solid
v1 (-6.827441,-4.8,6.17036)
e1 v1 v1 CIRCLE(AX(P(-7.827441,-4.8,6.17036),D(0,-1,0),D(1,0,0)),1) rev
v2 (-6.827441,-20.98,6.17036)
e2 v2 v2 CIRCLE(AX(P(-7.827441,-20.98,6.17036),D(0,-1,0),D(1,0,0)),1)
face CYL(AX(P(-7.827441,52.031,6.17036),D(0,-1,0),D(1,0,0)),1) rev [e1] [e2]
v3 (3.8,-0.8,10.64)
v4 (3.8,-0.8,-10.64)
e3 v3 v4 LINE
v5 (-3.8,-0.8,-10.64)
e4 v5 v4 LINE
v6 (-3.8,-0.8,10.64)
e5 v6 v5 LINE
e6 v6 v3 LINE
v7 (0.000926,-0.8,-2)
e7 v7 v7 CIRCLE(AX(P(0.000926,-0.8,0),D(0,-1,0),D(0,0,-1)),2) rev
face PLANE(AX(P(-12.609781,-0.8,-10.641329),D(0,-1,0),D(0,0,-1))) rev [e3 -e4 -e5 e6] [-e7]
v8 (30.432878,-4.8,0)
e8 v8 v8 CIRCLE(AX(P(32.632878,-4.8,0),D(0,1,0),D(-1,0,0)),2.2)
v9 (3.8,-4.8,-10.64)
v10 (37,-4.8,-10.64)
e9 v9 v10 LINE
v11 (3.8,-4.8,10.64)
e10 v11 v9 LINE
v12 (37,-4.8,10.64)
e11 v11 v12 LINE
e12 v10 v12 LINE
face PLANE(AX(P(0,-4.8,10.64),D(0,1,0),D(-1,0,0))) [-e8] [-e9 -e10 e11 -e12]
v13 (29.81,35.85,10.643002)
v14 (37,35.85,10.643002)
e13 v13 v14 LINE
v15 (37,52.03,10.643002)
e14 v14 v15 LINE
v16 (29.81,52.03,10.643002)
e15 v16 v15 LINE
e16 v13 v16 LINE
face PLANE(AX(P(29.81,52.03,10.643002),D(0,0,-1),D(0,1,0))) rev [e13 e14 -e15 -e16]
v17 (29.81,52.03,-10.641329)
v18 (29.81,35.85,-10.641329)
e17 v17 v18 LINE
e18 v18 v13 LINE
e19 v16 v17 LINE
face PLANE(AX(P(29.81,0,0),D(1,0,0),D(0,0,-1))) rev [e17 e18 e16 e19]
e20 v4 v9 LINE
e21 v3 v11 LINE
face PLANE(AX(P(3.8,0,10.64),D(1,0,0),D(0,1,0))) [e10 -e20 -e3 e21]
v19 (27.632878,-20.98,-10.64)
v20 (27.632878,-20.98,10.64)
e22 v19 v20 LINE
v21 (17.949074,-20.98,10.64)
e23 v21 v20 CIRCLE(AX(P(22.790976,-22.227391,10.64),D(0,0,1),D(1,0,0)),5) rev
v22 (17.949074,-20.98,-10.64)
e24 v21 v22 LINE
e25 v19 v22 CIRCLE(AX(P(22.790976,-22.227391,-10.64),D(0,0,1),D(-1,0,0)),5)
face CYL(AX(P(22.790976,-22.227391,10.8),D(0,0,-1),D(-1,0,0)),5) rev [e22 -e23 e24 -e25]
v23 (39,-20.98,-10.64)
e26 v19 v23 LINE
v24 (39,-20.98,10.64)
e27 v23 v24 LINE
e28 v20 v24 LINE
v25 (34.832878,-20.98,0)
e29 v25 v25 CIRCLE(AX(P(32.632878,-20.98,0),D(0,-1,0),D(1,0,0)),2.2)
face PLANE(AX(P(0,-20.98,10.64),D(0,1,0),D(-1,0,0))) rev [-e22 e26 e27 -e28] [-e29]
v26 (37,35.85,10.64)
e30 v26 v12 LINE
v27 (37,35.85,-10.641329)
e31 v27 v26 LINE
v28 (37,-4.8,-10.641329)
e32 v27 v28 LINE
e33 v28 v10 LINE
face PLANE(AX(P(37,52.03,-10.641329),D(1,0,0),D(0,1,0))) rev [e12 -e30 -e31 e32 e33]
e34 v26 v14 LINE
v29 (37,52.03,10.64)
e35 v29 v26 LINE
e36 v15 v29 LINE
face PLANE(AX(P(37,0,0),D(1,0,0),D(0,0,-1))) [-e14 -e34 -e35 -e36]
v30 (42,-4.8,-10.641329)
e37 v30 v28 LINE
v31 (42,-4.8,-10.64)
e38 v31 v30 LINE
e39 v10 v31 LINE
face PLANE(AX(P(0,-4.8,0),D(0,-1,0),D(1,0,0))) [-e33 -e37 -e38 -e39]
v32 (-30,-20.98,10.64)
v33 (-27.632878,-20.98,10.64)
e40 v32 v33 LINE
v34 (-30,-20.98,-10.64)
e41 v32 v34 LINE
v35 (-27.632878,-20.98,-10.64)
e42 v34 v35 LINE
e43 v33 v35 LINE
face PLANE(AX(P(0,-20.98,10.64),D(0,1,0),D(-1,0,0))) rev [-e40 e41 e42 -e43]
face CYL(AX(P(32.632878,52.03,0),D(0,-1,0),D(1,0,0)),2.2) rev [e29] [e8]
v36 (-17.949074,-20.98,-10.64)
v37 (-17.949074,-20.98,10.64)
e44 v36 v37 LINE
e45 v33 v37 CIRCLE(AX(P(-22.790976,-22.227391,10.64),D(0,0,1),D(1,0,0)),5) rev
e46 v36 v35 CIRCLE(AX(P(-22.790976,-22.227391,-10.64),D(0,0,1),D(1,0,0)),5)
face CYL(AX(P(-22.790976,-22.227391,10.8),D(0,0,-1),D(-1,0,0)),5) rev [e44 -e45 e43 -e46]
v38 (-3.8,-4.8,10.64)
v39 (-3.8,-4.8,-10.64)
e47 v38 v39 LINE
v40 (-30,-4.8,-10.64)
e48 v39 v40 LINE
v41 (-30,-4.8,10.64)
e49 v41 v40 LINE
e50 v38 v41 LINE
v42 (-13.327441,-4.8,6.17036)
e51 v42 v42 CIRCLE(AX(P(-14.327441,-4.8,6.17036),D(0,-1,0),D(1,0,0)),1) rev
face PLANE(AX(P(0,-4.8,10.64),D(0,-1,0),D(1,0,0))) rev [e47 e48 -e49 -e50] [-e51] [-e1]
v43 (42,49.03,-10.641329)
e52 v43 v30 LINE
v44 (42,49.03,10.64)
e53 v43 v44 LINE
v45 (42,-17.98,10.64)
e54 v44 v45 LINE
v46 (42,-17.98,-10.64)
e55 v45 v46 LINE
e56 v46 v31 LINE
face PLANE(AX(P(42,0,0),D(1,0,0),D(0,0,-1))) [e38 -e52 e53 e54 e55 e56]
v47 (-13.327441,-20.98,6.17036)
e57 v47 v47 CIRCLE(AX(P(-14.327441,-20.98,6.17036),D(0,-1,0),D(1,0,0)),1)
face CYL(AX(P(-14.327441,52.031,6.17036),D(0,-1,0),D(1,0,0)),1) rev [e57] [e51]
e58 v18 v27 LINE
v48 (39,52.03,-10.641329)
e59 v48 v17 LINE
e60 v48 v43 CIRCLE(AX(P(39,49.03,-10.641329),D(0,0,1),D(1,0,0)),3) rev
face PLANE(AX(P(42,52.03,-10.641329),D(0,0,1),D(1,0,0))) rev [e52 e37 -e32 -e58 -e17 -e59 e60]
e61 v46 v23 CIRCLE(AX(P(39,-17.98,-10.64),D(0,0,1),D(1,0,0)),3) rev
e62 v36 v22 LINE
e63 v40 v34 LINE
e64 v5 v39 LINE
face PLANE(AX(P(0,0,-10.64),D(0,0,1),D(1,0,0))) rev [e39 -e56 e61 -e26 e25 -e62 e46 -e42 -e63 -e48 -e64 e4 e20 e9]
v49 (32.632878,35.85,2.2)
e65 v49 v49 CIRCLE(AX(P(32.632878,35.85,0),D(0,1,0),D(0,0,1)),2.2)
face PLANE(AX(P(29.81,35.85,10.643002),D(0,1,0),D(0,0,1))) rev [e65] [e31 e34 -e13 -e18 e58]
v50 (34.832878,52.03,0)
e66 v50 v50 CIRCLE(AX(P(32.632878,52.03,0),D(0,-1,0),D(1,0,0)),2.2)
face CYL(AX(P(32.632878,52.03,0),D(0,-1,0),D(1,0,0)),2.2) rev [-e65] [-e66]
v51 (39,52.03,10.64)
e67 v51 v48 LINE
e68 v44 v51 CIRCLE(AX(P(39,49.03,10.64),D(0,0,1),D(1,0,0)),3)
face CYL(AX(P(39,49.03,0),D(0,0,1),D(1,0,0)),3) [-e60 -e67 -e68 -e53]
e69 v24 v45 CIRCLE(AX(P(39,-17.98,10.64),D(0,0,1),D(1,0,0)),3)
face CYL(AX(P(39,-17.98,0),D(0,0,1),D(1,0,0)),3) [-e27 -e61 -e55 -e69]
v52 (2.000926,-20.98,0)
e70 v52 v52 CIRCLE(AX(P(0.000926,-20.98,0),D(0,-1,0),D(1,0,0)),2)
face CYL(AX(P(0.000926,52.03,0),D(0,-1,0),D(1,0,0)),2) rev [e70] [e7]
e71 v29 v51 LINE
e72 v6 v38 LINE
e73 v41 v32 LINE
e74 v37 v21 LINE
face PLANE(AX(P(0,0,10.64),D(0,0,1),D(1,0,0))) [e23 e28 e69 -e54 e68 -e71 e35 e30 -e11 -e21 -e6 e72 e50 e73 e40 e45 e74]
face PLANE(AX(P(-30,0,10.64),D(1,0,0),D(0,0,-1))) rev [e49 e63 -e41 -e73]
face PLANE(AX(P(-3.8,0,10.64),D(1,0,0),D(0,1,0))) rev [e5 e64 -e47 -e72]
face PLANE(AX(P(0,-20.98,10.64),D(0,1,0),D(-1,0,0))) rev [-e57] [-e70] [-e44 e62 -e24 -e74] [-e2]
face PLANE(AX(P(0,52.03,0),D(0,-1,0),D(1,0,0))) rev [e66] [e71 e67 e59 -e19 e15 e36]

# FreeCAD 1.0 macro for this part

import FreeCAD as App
import Part
import Sketcher
Q = App.Units.Quantity


def edges_at(feature, points):
    """Names of the edges that pass closest to the given points."""
    edges = feature.Shape.Edges
    near = lambda p: min(range(len(edges)), key=lambda i: edges[i].distToShape(Part.Vertex(*p))[0])
    return sorted({f"Edge{near(p) + 1}" for p in points})

doc = App.newDocument("Part")
body = doc.addObject("PartDesign::Body", "Body")

# Sketch on XY plane
sketch1 = body.newObject("Sketcher::SketchObject", "Sketch")
sketch1.AttachmentSupport = (doc.getObject("XY_Plane"), [""])
sketch1.MapMode = "FlatFace"
sketch1.addGeometry(Part.LineSegment(App.Vector(-10.1, 0, 0), App.Vector(10.1, 0, 0)), False)
sketch1.addGeometry(Part.LineSegment(App.Vector(10.1, 0, 0), App.Vector(10.1, 1.709944, 0)), False)
sketch1.addGeometry(Part.LineSegment(App.Vector(10.1, 1.709944, 0), App.Vector(6.254804, 7, 0)), False)
sketch1.addGeometry(Part.LineSegment(App.Vector(6.254804, 7, 0), App.Vector(-6.254804, 7, 0)), False)
sketch1.addGeometry(Part.LineSegment(App.Vector(-6.254804, 7, 0), App.Vector(-10.1, 1.709944, 0)), False)
sketch1.addGeometry(Part.LineSegment(App.Vector(-10.1, 1.709944, 0), App.Vector(-10.1, 0, 0)), False)
sketch1.addConstraint(Sketcher.Constraint("Coincident", 0, 2, 1, 1))
sketch1.addConstraint(Sketcher.Constraint("Coincident", 1, 2, 2, 1))
sketch1.addConstraint(Sketcher.Constraint("Coincident", 2, 2, 3, 1))
sketch1.addConstraint(Sketcher.Constraint("Coincident", 3, 2, 4, 1))
sketch1.addConstraint(Sketcher.Constraint("Coincident", 4, 2, 5, 1))
sketch1.addConstraint(Sketcher.Constraint("Coincident", 5, 2, 0, 1))
sketch1.addConstraint(Sketcher.Constraint("Horizontal", 0))
sketch1.addConstraint(Sketcher.Constraint("Vertical", 1))
sketch1.addConstraint(Sketcher.Constraint("Horizontal", 3))
sketch1.addConstraint(Sketcher.Constraint("Vertical", 5))
sketch1.addConstraint(Sketcher.Constraint("Symmetric", 0, 2, 5, 2, -1, 1))
sketch1.addConstraint(Sketcher.Constraint("Horizontal", 1, 2, 4, 2))
sketch1.addConstraint(Sketcher.Constraint("Equal", 2, 4))
sketch1.addConstraint(Sketcher.Constraint("DistanceX", 0, 1, 0, 2, Q("20.2 mm")))
sketch1.addConstraint(Sketcher.Constraint("DistanceY", -1, 1, 2, 2, Q("7 mm")))
sketch1.addConstraint(Sketcher.Constraint("DistanceX", 3, 2, 3, 1, Q("12.509609 mm")))
sketch1.addConstraint(Sketcher.Constraint("DistanceY", 1, 1, 1, 2, Q("1.709944 mm")))
pad1 = body.newObject("PartDesign::Pad", "Pad")
pad1.Profile = sketch1
pad1.Length = 10.8

# Sketch on XY plane
sketch2 = body.newObject("Sketcher::SketchObject", "Sketch001")
sketch2.AttachmentSupport = (doc.getObject("XY_Plane"), [""])
sketch2.MapMode = "FlatFace"
sketch2.addGeometry(Part.LineSegment(App.Vector(-3.8, 0, 0), App.Vector(-3.8, -4.8, 0)), False)
sketch2.addGeometry(Part.LineSegment(App.Vector(-3.8, -4.8, 0), App.Vector(-30, -4.8, 0)), False)
sketch2.addGeometry(Part.LineSegment(App.Vector(-30, -4.8, 0), App.Vector(-30, -20.98, 0)), False)
sketch2.addGeometry(Part.LineSegment(App.Vector(-30, -20.98, 0), App.Vector(30, -20.98, 0)), False)
sketch2.addGeometry(Part.LineSegment(App.Vector(30, -20.98, 0), App.Vector(30, -4.8, 0)), False)
sketch2.addGeometry(Part.LineSegment(App.Vector(30, -4.8, 0), App.Vector(3.8, -4.8, 0)), False)
sketch2.addGeometry(Part.LineSegment(App.Vector(3.8, -4.8, 0), App.Vector(3.8, 0, 0)), False)
sketch2.addGeometry(Part.LineSegment(App.Vector(3.8, 0, 0), App.Vector(-3.8, 0, 0)), False)
sketch2.addConstraint(Sketcher.Constraint("Coincident", 0, 2, 1, 1))
sketch2.addConstraint(Sketcher.Constraint("Coincident", 1, 2, 2, 1))
sketch2.addConstraint(Sketcher.Constraint("Coincident", 2, 2, 3, 1))
sketch2.addConstraint(Sketcher.Constraint("Coincident", 3, 2, 4, 1))
sketch2.addConstraint(Sketcher.Constraint("Coincident", 4, 2, 5, 1))
sketch2.addConstraint(Sketcher.Constraint("Coincident", 5, 2, 6, 1))
sketch2.addConstraint(Sketcher.Constraint("Coincident", 6, 2, 7, 1))
sketch2.addConstraint(Sketcher.Constraint("Coincident", 7, 2, 0, 1))
sketch2.addConstraint(Sketcher.Constraint("Vertical", 0))
sketch2.addConstraint(Sketcher.Constraint("Horizontal", 1))
sketch2.addConstraint(Sketcher.Constraint("Vertical", 2))
sketch2.addConstraint(Sketcher.Constraint("Horizontal", 3))
sketch2.addConstraint(Sketcher.Constraint("Vertical", 4))
sketch2.addConstraint(Sketcher.Constraint("Horizontal", 5))
sketch2.addConstraint(Sketcher.Constraint("Vertical", 6))
sketch2.addConstraint(Sketcher.Constraint("Horizontal", 7))
sketch2.addConstraint(Sketcher.Constraint("Symmetric", 6, 2, 7, 2, -1, 1))
sketch2.addConstraint(Sketcher.Constraint("Symmetric", 1, 2, 4, 2, -2))
sketch2.addConstraint(Sketcher.Constraint("DistanceX", 3, 1, 3, 2, Q("60 mm")))
sketch2.addConstraint(Sketcher.Constraint("DistanceX", 1, 2, 1, 1, Q("26.2 mm")))
sketch2.addConstraint(Sketcher.Constraint("DistanceY", 0, 2, 0, 1, Q("4.8 mm")))
sketch2.addConstraint(Sketcher.Constraint("DistanceY", 2, 2, 2, 1, Q("16.18 mm")))
pad2 = body.newObject("PartDesign::Pad", "Pad001")
pad2.Profile = sketch2
pad2.Length = 21.28
pad2.Midplane = True

# Sketch on XY plane
sketch3 = body.newObject("Sketcher::SketchObject", "Sketch002")
sketch3.AttachmentSupport = (doc.getObject("XY_Plane"), [""])
sketch3.MapMode = "FlatFace"
sketch3.addGeometry(Part.Circle(App.Vector(-22.790976, -22.227391, 0), App.Vector(0, 0, 1), 5), False)
sketch3.addGeometry(Part.Circle(App.Vector(22.790976, -22.227391, 0), App.Vector(0, 0, 1), 5), False)
sketch3.addConstraint(Sketcher.Constraint("Equal", 0, 1))
sketch3.addConstraint(Sketcher.Constraint("Symmetric", 0, 3, 1, 3, -2))
sketch3.addConstraint(Sketcher.Constraint("Diameter", 0, Q("10 mm")))
sketch3.addConstraint(Sketcher.Constraint("DistanceY", 0, 3, -1, 1, Q("22.227391 mm")))
sketch3.addConstraint(Sketcher.Constraint("DistanceX", 0, 3, -1, 1, Q("22.790976 mm")))
pocket1 = body.newObject("PartDesign::Pocket", "Pocket")
pocket1.Profile = sketch3
pocket1.Type = "ThroughAll"
pocket1.Midplane = True
doc.recompute()

fillet = body.newObject("PartDesign::Fillet", "Fillet")
fillet.Base = (pocket1, edges_at(pocket1, [
    (-10.1, 0, 5.4),
    (-10.1, 1.71, 5.4),
    (-6.255, 7, 5.4),
    (6.255, 7, 5.4),
    (10.1, 1.71, 5.4),
    (10.1, 0, 5.4),
]))
fillet.Radius = 1

# Sketch on YZ plane
sketch4 = body.newObject("Sketcher::SketchObject", "Sketch003")
sketch4.AttachmentSupport = (doc.getObject("YZ_Plane"), [""])
sketch4.MapMode = "FlatFace"
sketch4.AttachmentOffset = App.Placement(App.Vector(0, 0, 30), App.Rotation())
sketch4.addGeometry(Part.LineSegment(App.Vector(-4.8, 10.64, 0), App.Vector(-20.98, 10.64, 0)), False)
sketch4.addGeometry(Part.LineSegment(App.Vector(-20.98, 10.64, 0), App.Vector(-20.98, -10.64, 0)), False)
sketch4.addGeometry(Part.LineSegment(App.Vector(-20.98, -10.64, 0), App.Vector(-4.8, -10.64, 0)), False)
sketch4.addGeometry(Part.LineSegment(App.Vector(-4.8, -10.64, 0), App.Vector(-4.8, 10.64, 0)), False)
sketch4.addConstraint(Sketcher.Constraint("Coincident", 0, 2, 1, 1))
sketch4.addConstraint(Sketcher.Constraint("Coincident", 1, 2, 2, 1))
sketch4.addConstraint(Sketcher.Constraint("Coincident", 2, 2, 3, 1))
sketch4.addConstraint(Sketcher.Constraint("Coincident", 3, 2, 0, 1))
sketch4.addConstraint(Sketcher.Constraint("Horizontal", 0))
sketch4.addConstraint(Sketcher.Constraint("Vertical", 1))
sketch4.addConstraint(Sketcher.Constraint("Horizontal", 2))
sketch4.addConstraint(Sketcher.Constraint("Vertical", 3))
sketch4.addConstraint(Sketcher.Constraint("DistanceX", 0, 2, 0, 1, Q("16.18 mm")))
sketch4.addConstraint(Sketcher.Constraint("DistanceY", 1, 2, 1, 1, Q("21.28 mm")))
sketch4.addConstraint(Sketcher.Constraint("DistanceX", 2, 2, -1, 1, Q("4.8 mm")))
sketch4.addConstraint(Sketcher.Constraint("DistanceY", -1, 1, 0, 2, Q("10.64 mm")))
pad3 = body.newObject("PartDesign::Pad", "Pad002")
pad3.Profile = sketch4
pad3.Length = 12

# Sketch on XZ plane
sketch5 = body.newObject("Sketcher::SketchObject", "Sketch004")
sketch5.AttachmentSupport = (doc.getObject("XZ_Plane"), [""])
sketch5.MapMode = "FlatFace"
sketch5.AttachmentOffset = App.Placement(App.Vector(0, 0, 4.8), App.Rotation())
sketch5.addGeometry(Part.LineSegment(App.Vector(37, -10.641329, 0), App.Vector(37, 10.64, 0)), False)
sketch5.addGeometry(Part.LineSegment(App.Vector(37, 10.64, 0), App.Vector(42, 10.64, 0)), False)
sketch5.addGeometry(Part.LineSegment(App.Vector(42, 10.64, 0), App.Vector(42, -10.641329, 0)), False)
sketch5.addGeometry(Part.LineSegment(App.Vector(42, -10.641329, 0), App.Vector(37, -10.641329, 0)), False)
sketch5.addConstraint(Sketcher.Constraint("Coincident", 0, 2, 1, 1))
sketch5.addConstraint(Sketcher.Constraint("Coincident", 1, 2, 2, 1))
sketch5.addConstraint(Sketcher.Constraint("Coincident", 2, 2, 3, 1))
sketch5.addConstraint(Sketcher.Constraint("Coincident", 3, 2, 0, 1))
sketch5.addConstraint(Sketcher.Constraint("Vertical", 0))
sketch5.addConstraint(Sketcher.Constraint("Horizontal", 1))
sketch5.addConstraint(Sketcher.Constraint("Vertical", 2))
sketch5.addConstraint(Sketcher.Constraint("Horizontal", 3))
sketch5.addConstraint(Sketcher.Constraint("DistanceX", 1, 1, 1, 2, Q("5 mm")))
sketch5.addConstraint(Sketcher.Constraint("DistanceX", -1, 1, 0, 2, Q("37 mm")))
sketch5.addConstraint(Sketcher.Constraint("DistanceY", -1, 1, 0, 2, Q("10.64 mm")))
sketch5.addConstraint(Sketcher.Constraint("DistanceY", 0, 1, 0, 2, Q("21.281329 mm")))
pad4 = body.newObject("PartDesign::Pad", "Pad003")
pad4.Profile = sketch5
pad4.Length = 56.83
pad4.Reversed = True

# Sketch on YZ plane
sketch6 = body.newObject("Sketcher::SketchObject", "Sketch005")
sketch6.AttachmentSupport = (doc.getObject("YZ_Plane"), [""])
sketch6.MapMode = "FlatFace"
sketch6.AttachmentOffset = App.Placement(App.Vector(0, 0, 37), App.Rotation())
sketch6.addGeometry(Part.LineSegment(App.Vector(52.03, -10.641329, 0), App.Vector(35.85, -10.641329, 0)), False)
sketch6.addGeometry(Part.LineSegment(App.Vector(35.85, -10.641329, 0), App.Vector(35.85, 10.643002, 0)), False)
sketch6.addGeometry(Part.LineSegment(App.Vector(35.85, 10.643002, 0), App.Vector(52.03, 10.643002, 0)), False)
sketch6.addGeometry(Part.LineSegment(App.Vector(52.03, 10.643002, 0), App.Vector(52.03, -10.641329, 0)), False)
sketch6.addConstraint(Sketcher.Constraint("Coincident", 0, 2, 1, 1))
sketch6.addConstraint(Sketcher.Constraint("Coincident", 1, 2, 2, 1))
sketch6.addConstraint(Sketcher.Constraint("Coincident", 2, 2, 3, 1))
sketch6.addConstraint(Sketcher.Constraint("Coincident", 3, 2, 0, 1))
sketch6.addConstraint(Sketcher.Constraint("Horizontal", 0))
sketch6.addConstraint(Sketcher.Constraint("Vertical", 1))
sketch6.addConstraint(Sketcher.Constraint("Horizontal", 2))
sketch6.addConstraint(Sketcher.Constraint("Vertical", 3))
sketch6.addConstraint(Sketcher.Constraint("DistanceX", 0, 2, 0, 1, Q("16.18 mm")))
sketch6.addConstraint(Sketcher.Constraint("DistanceX", -1, 1, 0, 2, Q("35.85 mm")))
sketch6.addConstraint(Sketcher.Constraint("DistanceY", 1, 1, 1, 2, Q("21.284331 mm")))
sketch6.addConstraint(Sketcher.Constraint("DistanceY", 0, 2, -1, 1, Q("10.641329 mm")))
pad5 = body.newObject("PartDesign::Pad", "Pad004")
pad5.Profile = sketch6
pad5.Length = 7.19
pad5.Reversed = True
doc.recompute()

fillet2 = body.newObject("PartDesign::Fillet", "Fillet001")
fillet2.Base = (pad5, edges_at(pad5, [(42, -20.98, 0), (42, 52.03, -0.001)]))
fillet2.Radius = 3

# Sketch on XZ plane
sketch7 = body.newObject("Sketcher::SketchObject", "Sketch006")
sketch7.AttachmentSupport = (doc.getObject("XZ_Plane"), [""])
sketch7.MapMode = "FlatFace"
sketch7.AttachmentOffset = App.Placement(App.Vector(0, 0, 20.98), App.Rotation())
sketch7.addGeometry(Part.Circle(App.Vector(32.632878, 0, 0), App.Vector(0, 0, 1), 2.2), False)
sketch7.addConstraint(Sketcher.Constraint("PointOnObject", 0, 3, -1))
sketch7.addConstraint(Sketcher.Constraint("Diameter", 0, Q("4.4 mm")))
sketch7.addConstraint(Sketcher.Constraint("DistanceX", -1, 1, 0, 3, Q("32.632878 mm")))
pocket2 = body.newObject("PartDesign::Pocket", "Pocket001")
pocket2.Profile = sketch7
pocket2.Type = "ThroughAll"

# Sketch on XZ plane
sketch8 = body.newObject("Sketcher::SketchObject", "Sketch007")
sketch8.AttachmentSupport = (doc.getObject("XZ_Plane"), [""])
sketch8.MapMode = "FlatFace"
sketch8.AttachmentOffset = App.Placement(App.Vector(0, 0, 20.98), App.Rotation())
sketch8.addGeometry(Part.Circle(App.Vector(0.000926, 0, 0), App.Vector(0, 0, 1), 2), False)
sketch8.addConstraint(Sketcher.Constraint("PointOnObject", 0, 3, -1))
sketch8.addConstraint(Sketcher.Constraint("Diameter", 0, Q("4 mm")))
sketch8.addConstraint(Sketcher.Constraint("DistanceX", -1, 1, 0, 3, Q("0.000926 mm")))
pocket3 = body.newObject("PartDesign::Pocket", "Pocket002")
pocket3.Profile = sketch8
pocket3.Type = "ThroughAll"

# Sketch on XY plane
sketch9 = body.newObject("Sketcher::SketchObject", "Sketch008")
sketch9.AttachmentSupport = (doc.getObject("XY_Plane"), [""])
sketch9.MapMode = "FlatFace"
sketch9.AttachmentOffset = App.Placement(App.Vector(0, 0, 10.8), App.Rotation())
sketch9.addGeometry(Part.LineSegment(App.Vector(-12.609781, 8.921484, 0), App.Vector(-12.609781, -0.8, 0)), False)
sketch9.addGeometry(Part.LineSegment(App.Vector(-12.609781, -0.8, 0), App.Vector(12.367515, -0.8, 0)), False)
sketch9.addGeometry(Part.LineSegment(App.Vector(12.367515, -0.8, 0), App.Vector(12.367515, 8.921484, 0)), False)
sketch9.addGeometry(Part.LineSegment(App.Vector(12.367515, 8.921484, 0), App.Vector(-12.609781, 8.921484, 0)), False)
sketch9.addConstraint(Sketcher.Constraint("Coincident", 0, 2, 1, 1))
sketch9.addConstraint(Sketcher.Constraint("Coincident", 1, 2, 2, 1))
sketch9.addConstraint(Sketcher.Constraint("Coincident", 2, 2, 3, 1))
sketch9.addConstraint(Sketcher.Constraint("Coincident", 3, 2, 0, 1))
sketch9.addConstraint(Sketcher.Constraint("Vertical", 0))
sketch9.addConstraint(Sketcher.Constraint("Horizontal", 1))
sketch9.addConstraint(Sketcher.Constraint("Vertical", 2))
sketch9.addConstraint(Sketcher.Constraint("Horizontal", 3))
sketch9.addConstraint(Sketcher.Constraint("DistanceY", 0, 2, -1, 1, Q("0.8 mm")))
sketch9.addConstraint(Sketcher.Constraint("DistanceX", 1, 1, 1, 2, Q("24.977297 mm")))
sketch9.addConstraint(Sketcher.Constraint("DistanceY", 0, 2, 0, 1, Q("9.721484 mm")))
sketch9.addConstraint(Sketcher.Constraint("DistanceX", 0, 2, -1, 1, Q("12.609781 mm")))
pocket4 = body.newObject("PartDesign::Pocket", "Pocket003")
pocket4.Profile = sketch9
pocket4.Type = "ThroughAll"

# Sketch on XZ plane
sketch10 = body.newObject("Sketcher::SketchObject", "Sketch009")
sketch10.AttachmentSupport = (doc.getObject("XZ_Plane"), [""])
sketch10.MapMode = "FlatFace"
sketch10.AttachmentOffset = App.Placement(App.Vector(0, 0, 20.98), App.Rotation())
sketch10.addGeometry(Part.Circle(App.Vector(-7.827441, 6.17036, 0), App.Vector(0, 0, 1), 1), False)
sketch10.addConstraint(Sketcher.Constraint("Diameter", 0, Q("2 mm")))
sketch10.addConstraint(Sketcher.Constraint("DistanceX", 0, 3, -1, 1, Q("7.827441 mm")))
sketch10.addConstraint(Sketcher.Constraint("DistanceY", -1, 1, 0, 3, Q("6.17036 mm")))
pocket5 = body.newObject("PartDesign::Pocket", "Pocket004")
pocket5.Profile = sketch10
pocket5.Type = "UpToFirst"

# Sketch on XZ plane
sketch11 = body.newObject("Sketcher::SketchObject", "Sketch010")
sketch11.AttachmentSupport = (doc.getObject("XZ_Plane"), [""])
sketch11.MapMode = "FlatFace"
sketch11.AttachmentOffset = App.Placement(App.Vector(0, 0, 20.98), App.Rotation())
sketch11.addGeometry(Part.Circle(App.Vector(-14.327441, 6.17036, 0), App.Vector(0, 0, 1), 1), False)
sketch11.addConstraint(Sketcher.Constraint("Diameter", 0, Q("2 mm")))
sketch11.addConstraint(Sketcher.Constraint("DistanceX", 0, 3, -1, 1, Q("14.327441 mm")))
sketch11.addConstraint(Sketcher.Constraint("DistanceY", -1, 1, 0, 3, Q("6.17036 mm")))
pocket6 = body.newObject("PartDesign::Pocket", "Pocket005")
pocket6.Profile = sketch11
pocket6.Type = "UpToFirst"

doc.recompute()
